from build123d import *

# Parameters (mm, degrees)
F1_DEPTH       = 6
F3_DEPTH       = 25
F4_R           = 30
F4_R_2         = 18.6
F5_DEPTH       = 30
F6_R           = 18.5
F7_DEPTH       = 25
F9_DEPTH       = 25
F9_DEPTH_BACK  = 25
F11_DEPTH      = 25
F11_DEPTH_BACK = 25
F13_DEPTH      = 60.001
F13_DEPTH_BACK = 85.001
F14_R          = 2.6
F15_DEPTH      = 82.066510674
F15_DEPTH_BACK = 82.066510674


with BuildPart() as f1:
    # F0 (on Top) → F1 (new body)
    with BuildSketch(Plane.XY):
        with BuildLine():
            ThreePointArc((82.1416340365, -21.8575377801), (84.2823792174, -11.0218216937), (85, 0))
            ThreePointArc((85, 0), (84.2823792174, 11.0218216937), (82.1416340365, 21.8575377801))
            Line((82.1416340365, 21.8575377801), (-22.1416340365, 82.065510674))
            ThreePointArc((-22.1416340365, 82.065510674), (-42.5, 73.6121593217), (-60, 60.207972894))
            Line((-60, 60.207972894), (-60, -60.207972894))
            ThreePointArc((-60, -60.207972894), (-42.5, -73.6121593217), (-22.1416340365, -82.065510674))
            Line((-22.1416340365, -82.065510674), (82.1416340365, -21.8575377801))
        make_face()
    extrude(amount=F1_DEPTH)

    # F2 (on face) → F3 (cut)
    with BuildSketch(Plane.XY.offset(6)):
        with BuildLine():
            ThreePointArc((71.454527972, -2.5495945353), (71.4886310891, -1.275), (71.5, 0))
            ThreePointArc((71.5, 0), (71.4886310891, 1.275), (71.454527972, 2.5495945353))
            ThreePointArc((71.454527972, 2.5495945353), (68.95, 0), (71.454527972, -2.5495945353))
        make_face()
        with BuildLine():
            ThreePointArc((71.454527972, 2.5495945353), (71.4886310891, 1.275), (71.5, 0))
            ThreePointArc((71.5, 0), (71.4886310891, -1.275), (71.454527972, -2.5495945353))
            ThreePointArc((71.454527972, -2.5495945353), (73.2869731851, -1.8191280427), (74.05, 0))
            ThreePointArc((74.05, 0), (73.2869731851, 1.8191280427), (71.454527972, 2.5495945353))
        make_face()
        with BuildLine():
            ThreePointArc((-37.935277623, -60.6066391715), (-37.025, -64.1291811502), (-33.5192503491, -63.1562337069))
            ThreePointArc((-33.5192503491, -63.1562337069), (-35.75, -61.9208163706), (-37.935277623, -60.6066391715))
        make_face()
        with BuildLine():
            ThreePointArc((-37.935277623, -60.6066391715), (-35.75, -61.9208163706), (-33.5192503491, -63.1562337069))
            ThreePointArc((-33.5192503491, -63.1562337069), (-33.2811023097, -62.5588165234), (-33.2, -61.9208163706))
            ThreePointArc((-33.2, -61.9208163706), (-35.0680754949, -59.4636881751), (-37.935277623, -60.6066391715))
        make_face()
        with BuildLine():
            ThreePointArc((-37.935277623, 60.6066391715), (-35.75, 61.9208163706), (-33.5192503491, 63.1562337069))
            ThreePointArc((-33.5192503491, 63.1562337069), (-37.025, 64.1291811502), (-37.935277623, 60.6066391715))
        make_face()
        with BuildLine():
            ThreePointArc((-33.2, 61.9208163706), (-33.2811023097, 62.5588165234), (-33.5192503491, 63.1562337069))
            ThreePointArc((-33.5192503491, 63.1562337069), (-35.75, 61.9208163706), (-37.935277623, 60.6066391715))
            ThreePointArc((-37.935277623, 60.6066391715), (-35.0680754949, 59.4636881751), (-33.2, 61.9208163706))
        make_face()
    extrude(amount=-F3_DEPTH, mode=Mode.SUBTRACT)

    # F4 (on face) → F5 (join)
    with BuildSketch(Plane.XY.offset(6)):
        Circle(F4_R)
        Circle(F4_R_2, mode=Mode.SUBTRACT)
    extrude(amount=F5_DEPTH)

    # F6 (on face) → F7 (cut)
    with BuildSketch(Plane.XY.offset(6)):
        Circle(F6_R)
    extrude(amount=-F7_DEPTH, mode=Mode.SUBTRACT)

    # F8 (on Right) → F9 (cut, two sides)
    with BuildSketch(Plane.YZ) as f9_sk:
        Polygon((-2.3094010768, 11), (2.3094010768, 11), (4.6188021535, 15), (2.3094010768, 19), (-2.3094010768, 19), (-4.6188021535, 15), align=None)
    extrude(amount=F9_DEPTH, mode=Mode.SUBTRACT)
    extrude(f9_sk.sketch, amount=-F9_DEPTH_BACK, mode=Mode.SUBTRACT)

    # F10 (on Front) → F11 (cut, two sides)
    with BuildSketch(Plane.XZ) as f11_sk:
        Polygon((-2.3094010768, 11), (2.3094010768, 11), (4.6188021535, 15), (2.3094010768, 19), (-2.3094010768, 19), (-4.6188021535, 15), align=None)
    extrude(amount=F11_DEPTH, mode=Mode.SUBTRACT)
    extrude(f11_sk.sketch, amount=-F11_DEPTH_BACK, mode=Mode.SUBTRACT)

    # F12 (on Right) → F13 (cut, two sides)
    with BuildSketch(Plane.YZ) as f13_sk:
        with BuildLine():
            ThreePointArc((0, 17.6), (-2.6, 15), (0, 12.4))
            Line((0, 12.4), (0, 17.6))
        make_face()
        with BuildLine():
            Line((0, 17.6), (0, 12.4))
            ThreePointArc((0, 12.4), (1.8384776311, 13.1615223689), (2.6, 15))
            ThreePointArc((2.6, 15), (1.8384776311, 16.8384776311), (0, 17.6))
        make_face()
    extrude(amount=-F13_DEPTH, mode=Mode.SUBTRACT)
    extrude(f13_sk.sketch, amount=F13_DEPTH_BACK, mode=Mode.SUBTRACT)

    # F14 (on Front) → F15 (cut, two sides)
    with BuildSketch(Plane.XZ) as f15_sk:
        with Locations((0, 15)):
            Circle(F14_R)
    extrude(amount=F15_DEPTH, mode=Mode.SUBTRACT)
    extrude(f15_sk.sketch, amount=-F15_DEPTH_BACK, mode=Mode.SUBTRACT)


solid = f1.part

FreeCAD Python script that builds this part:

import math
import FreeCAD as App
import Part
import Sketcher

V = App.Vector
Q = App.Units.Quantity


def add_polygon(sketch, points):
    """Adds a closed chain of lines whose ends are joined by coincident constraints."""
    first, n = sketch.GeometryCount, len(points)
    for a, b in zip(points, points[1:] + points[:1]):
        sketch.addGeometry(Part.LineSegment(App.Vector(*a, 0), App.Vector(*b, 0)), False)
    for i in range(n):
        sketch.addConstraint(Sketcher.Constraint("Coincident", first + i, 2, first + (i + 1) % n, 1))

doc = App.newDocument("Part")
body = doc.addObject("PartDesign::Body", "Body")

# Sketch on XY plane
sketch1 = doc.addObject("Sketcher::SketchObject", "Sketch")
body.addObject(sketch1)
sketch1.AttachmentSupport = (doc.XY_Plane, [""])
sketch1.MapMode = "FlatFace"
sketch1.addGeometry(Part.ArcOfCircle(Part.Circle(V(0, 0, 0), V(0, 0, 1), 85), math.radians(-14.9), math.radians(0)), False)
sketch1.addGeometry(Part.ArcOfCircle(Part.Circle(V(0, 0, 0), V(0, 0, 1), 85), math.radians(0), math.radians(14.9)), False)
sketch1.addGeometry(Part.LineSegment(V(82, 22, 0), V(-22, 82, 0)), False)
sketch1.addGeometry(Part.ArcOfCircle(Part.Circle(V(0, 0, 0), V(0, 0, 1), 85), math.radians(105), math.radians(135)), False)
sketch1.addGeometry(Part.LineSegment(V(-60, 60, 0), V(-60, -60, 0)), False)
sketch1.addGeometry(Part.ArcOfCircle(Part.Circle(V(0, 0, 0), V(0, 0, 1), 85), math.radians(-135), math.radians(-105)), False)
sketch1.addGeometry(Part.LineSegment(V(-22, -82, 0), V(82, -22, 0)), False)
sketch1.addConstraint(Sketcher.Constraint("Tangent", 0, 2, 1, 1))
sketch1.addConstraint(Sketcher.Constraint("Coincident", 1, 2, 2, 1))
sketch1.addConstraint(Sketcher.Constraint("Coincident", 2, 2, 3, 1))
sketch1.addConstraint(Sketcher.Constraint("Coincident", 3, 2, 4, 1))
sketch1.addConstraint(Sketcher.Constraint("Coincident", 4, 2, 5, 1))
sketch1.addConstraint(Sketcher.Constraint("Coincident", 5, 2, 6, 1))
sketch1.addConstraint(Sketcher.Constraint("Coincident", 6, 2, 0, 1))
sketch1.addConstraint(Sketcher.Constraint("Vertical", 4))
sketch1.addConstraint(Sketcher.Constraint("Coincident", 0, 3, -1, 1))
sketch1.addConstraint(Sketcher.Constraint("Coincident", 3, 3, -1, 1))
sketch1.addConstraint(Sketcher.Constraint("Coincident", 5, 3, -1, 1))
sketch1.addConstraint(Sketcher.Constraint("Equal", 0, 1))
sketch1.addConstraint(Sketcher.Constraint("Equal", 1, 3))
sketch1.addConstraint(Sketcher.Constraint("Equal", 3, 5))
sketch1.addConstraint(Sketcher.Constraint("PointOnObject", 0, 2, -1))
sketch1.addConstraint(Sketcher.Constraint("Vertical", 2, 2, 5, 2))
sketch1.addConstraint(Sketcher.Constraint("Vertical", 1, 2, 6, 2))
sketch1.addConstraint(Sketcher.Constraint("Radius", 0, 85.0))
sketch1.addConstraint(Sketcher.Constraint("Angle", 2, Q("150 deg")))
sketch1.addConstraint(Sketcher.Constraint("DistanceX", 3, 2, -1, 1, 60.0))
sketch1.addConstraint(Sketcher.Constraint("DistanceY", -1, 1, 2, 2, 82.065511))
pad1 = doc.addObject("PartDesign::Pad", "Pad")
body.addObject(pad1)
pad1.Profile = sketch1
pad1.Length = 6

# Sketch on XY plane
sketch2 = doc.addObject("Sketcher::SketchObject", "Sketch001")
body.addObject(sketch2)
sketch2.AttachmentSupport = (doc.XY_Plane, [""])
sketch2.MapMode = "FlatFace"
sketch2.AttachmentOffset = App.Placement(V(0, 0, 6), App.Rotation())
sketch2.addGeometry(Part.ArcOfCircle(Part.Circle(V(71.5, 0, 0), V(0, 0, 1), 2.5), math.radians(91), math.radians(269)), False)
sketch2.addGeometry(Part.ArcOfCircle(Part.Circle(V(71.5, 0, 0), V(0, 0, 1), 2.5), math.radians(-91), math.radians(0)), False)
sketch2.addGeometry(Part.ArcOfCircle(Part.Circle(V(71.5, 0, 0), V(0, 0, 1), 2.5), math.radians(0), math.radians(91)), False)
sketch2.addGeometry(Part.ArcOfCircle(Part.Circle(V(-35.8, -61.9, 0), V(0, 0, 1), 2.5), math.radians(149), math.radians(331)), False)
sketch2.addGeometry(Part.ArcOfCircle(Part.Circle(V(-35.7, -61.9, 0), V(0, 0, 1), 2.5), math.radians(-29), math.radians(0)), False)
sketch2.addGeometry(Part.ArcOfCircle(Part.Circle(V(-35.8, -61.9, 0), V(0, 0, 1), 2.5), math.radians(0), math.radians(149)), False)
sketch2.addGeometry(Part.ArcOfCircle(Part.Circle(V(-35.8, 61.9, 0), V(0, 0, 1), 2.5), math.radians(29), math.radians(211)), False)
sketch2.addGeometry(Part.ArcOfCircle(Part.Circle(V(-35.8, 61.9, 0), V(0, 0, 1), 2.5), math.radians(-149), math.radians(0)), False)
sketch2.addGeometry(Part.ArcOfCircle(Part.Circle(V(-35.7, 61.9, 0), V(0, 0, 1), 2.5), math.radians(0), math.radians(29)), False)
sketch2.addConstraint(Sketcher.Constraint("Tangent", 0, 2, 1, 1))
sketch2.addConstraint(Sketcher.Constraint("Tangent", 1, 2, 2, 1))
sketch2.addConstraint(Sketcher.Constraint("Tangent", 2, 2, 0, 1))
sketch2.addConstraint(Sketcher.Constraint("Tangent", 3, 2, 4, 1))
sketch2.addConstraint(Sketcher.Constraint("Tangent", 4, 2, 5, 1))
sketch2.addConstraint(Sketcher.Constraint("Tangent", 5, 2, 3, 1))
sketch2.addConstraint(Sketcher.Constraint("Tangent", 6, 2, 7, 1))
sketch2.addConstraint(Sketcher.Constraint("Tangent", 7, 2, 8, 1))
sketch2.addConstraint(Sketcher.Constraint("Tangent", 8, 2, 6, 1))
sketch2.addConstraint(Sketcher.Constraint("Equal", 2, 3))
sketch2.addConstraint(Sketcher.Constraint("Equal", 5, 6))
sketch2.addConstraint(Sketcher.Constraint("Symmetric", 3, 3, 6, 3, -1))
sketch2.addConstraint(Sketcher.Constraint("Symmetric", 0, 2, 2, 2, -1))
sketch2.addConstraint(Sketcher.Constraint("PointOnObject", 1, 2, -1))
sketch2.addConstraint(Sketcher.Constraint("Horizontal", 5, 3, 4, 2))
sketch2.addConstraint(Sketcher.Constraint("Horizontal", 8, 3, 7, 2))
sketch2.addConstraint(Sketcher.Constraint("Vertical", 5, 2, 6, 2))
sketch2.addConstraint(Sketcher.Constraint("Vertical", 3, 2, 8, 2))
sketch2.addConstraint(Sketcher.Constraint("Radius", 0, 2.55))
sketch2.addConstraint(Sketcher.Constraint("DistanceX", -1, 1, 0, 3, 71.5))
sketch2.addConstraint(Sketcher.Constraint("DistanceX", 4, 2, -1, 1, 33.2))
sketch2.addConstraint(Sketcher.Constraint("DistanceX", 3, 2, -1, 1, 33.51925))
sketch2.addConstraint(Sketcher.Constraint("DistanceY", 5, 2, -1, 1, 60.606639))
sketch2.addConstraint(Sketcher.Constraint("DistanceY", 4, 3, 0, 2, 59.371222))
sketch2.addConstraint(Sketcher.Constraint("DistanceY", 0, 2, 2, 2, 5.099189))
pocket1 = doc.addObject("PartDesign::Pocket", "Pocket")
body.addObject(pocket1)
pocket1.Profile = sketch2
pocket1.Length = 25

# Sketch on XY plane
sketch3 = doc.addObject("Sketcher::SketchObject", "Sketch002")
body.addObject(sketch3)
sketch3.AttachmentSupport = (doc.XY_Plane, [""])
sketch3.MapMode = "FlatFace"
sketch3.AttachmentOffset = App.Placement(V(0, 0, 6), App.Rotation())
sketch3.addGeometry(Part.Circle(V(0, 0, 0), V(0, 0, 1), 30), False)
sketch3.addGeometry(Part.Circle(V(0, 0, 0), V(0, 0, 1), 19), False)
sketch3.addConstraint(Sketcher.Constraint("Coincident", 0, 3, -1, 1))
sketch3.addConstraint(Sketcher.Constraint("Coincident", 1, 3, -1, 1))
sketch3.addConstraint(Sketcher.Constraint("Diameter", 0, 60.0))
sketch3.addConstraint(Sketcher.Constraint("Diameter", 1, 37.2))
pad2 = doc.addObject("PartDesign::Pad", "Pad001")
body.addObject(pad2)
pad2.Profile = sketch3
pad2.Length = 30

# Sketch on XY plane
sketch4 = doc.addObject("Sketcher::SketchObject", "Sketch003")
body.addObject(sketch4)
sketch4.AttachmentSupport = (doc.XY_Plane, [""])
sketch4.MapMode = "FlatFace"
sketch4.AttachmentOffset = App.Placement(V(0, 0, 6), App.Rotation())
sketch4.addGeometry(Part.Circle(V(0, 0, 0), V(0, 0, 1), 18), False)
sketch4.addConstraint(Sketcher.Constraint("Coincident", 0, 3, -1, 1))
sketch4.addConstraint(Sketcher.Constraint("Diameter", 0, 37.0))
pocket2 = doc.addObject("PartDesign::Pocket", "Pocket001")
body.addObject(pocket2)
pocket2.Profile = sketch4
pocket2.Length = 25

# Sketch on YZ plane
sketch5 = doc.addObject("Sketcher::SketchObject", "Sketch004")
body.addObject(sketch5)
sketch5.AttachmentSupport = (doc.YZ_Plane, [""])
sketch5.MapMode = "FlatFace"
add_polygon(sketch5, [(-2.3, 11), (2.3, 11), (4.6, 15), (2.3, 19), (-2.3, 19), (-4.6, 15)])  # lines 0-5
sketch5.addConstraint(Sketcher.Constraint("Horizontal", 0))
sketch5.addConstraint(Sketcher.Constraint("Horizontal", 3))
sketch5.addConstraint(Sketcher.Constraint("Symmetric", 1, 2, 4, 2, -2))
sketch5.addConstraint(Sketcher.Constraint("Parallel", 1, 4))
sketch5.addConstraint(Sketcher.Constraint("Parallel", 2, 5))
sketch5.addConstraint(Sketcher.Constraint("Vertical", 0, 2, 2, 2))
sketch5.addConstraint(Sketcher.Constraint("Vertical", 3, 2, 5, 2))
sketch5.addConstraint(Sketcher.Constraint("Angle", 1, Q("60 deg")))
sketch5.addConstraint(Sketcher.Constraint("DistanceY", -1, 1, 0, 2, 11.0))
sketch5.addConstraint(Sketcher.Constraint("DistanceY", -1, 1, 1, 2, 15.0))
sketch5.addConstraint(Sketcher.Constraint("DistanceX", -1, 1, 0, 2, 2.309401))
pocket3 = doc.addObject("PartDesign::Pocket", "Pocket002")
body.addObject(pocket3)
pocket3.Profile = sketch5
pocket3.Type = "TwoLengths"
pocket3.Length = 25
pocket3.Length2 = 25
pocket3.Reversed = True

# Sketch on XZ plane
sketch6 = doc.addObject("Sketcher::SketchObject", "Sketch005")
body.addObject(sketch6)
sketch6.AttachmentSupport = (doc.XZ_Plane, [""])
sketch6.MapMode = "FlatFace"
add_polygon(sketch6, [(-2.3, 11), (2.3, 11), (4.6, 15), (2.3, 19), (-2.3, 19), (-4.6, 15)])  # lines 0-5
sketch6.addConstraint(Sketcher.Constraint("Horizontal", 0))
sketch6.addConstraint(Sketcher.Constraint("Horizontal", 3))
sketch6.addConstraint(Sketcher.Constraint("Symmetric", 1, 2, 4, 2, -2))
sketch6.addConstraint(Sketcher.Constraint("Parallel", 1, 4))
sketch6.addConstraint(Sketcher.Constraint("Parallel", 2, 5))
sketch6.addConstraint(Sketcher.Constraint("Vertical", 0, 2, 2, 2))
sketch6.addConstraint(Sketcher.Constraint("Vertical", 3, 2, 5, 2))
sketch6.addConstraint(Sketcher.Constraint("Angle", 1, Q("60 deg")))
sketch6.addConstraint(Sketcher.Constraint("DistanceY", -1, 1, 0, 2, 11.0))
sketch6.addConstraint(Sketcher.Constraint("DistanceY", -1, 1, 1, 2, 15.0))
sketch6.addConstraint(Sketcher.Constraint("DistanceX", -1, 1, 0, 2, 2.309401))
pocket4 = doc.addObject("PartDesign::Pocket", "Pocket003")
body.addObject(pocket4)
pocket4.Profile = sketch6
pocket4.Type = "TwoLengths"
pocket4.Length = 25
pocket4.Length2 = 25
pocket4.Reversed = True

# Sketch on YZ plane
sketch7 = doc.addObject("Sketcher::SketchObject", "Sketch006")
body.addObject(sketch7)
sketch7.AttachmentSupport = (doc.YZ_Plane, [""])
sketch7.MapMode = "FlatFace"
sketch7.addGeometry(Part.ArcOfCircle(Part.Circle(V(0, 15, 0), V(0, 0, 1), 2.6), math.radians(90), math.radians(270)), False)
sketch7.addGeometry(Part.ArcOfCircle(Part.Circle(V(0, 15, 0), V(0, 0, 1), 2.6), math.radians(-90), math.radians(0)), False)
sketch7.addGeometry(Part.ArcOfCircle(Part.Circle(V(0, 15, 0), V(0, 0, 1), 2.6), math.radians(0), math.radians(90)), False)
sketch7.addConstraint(Sketcher.Constraint("Tangent", 0, 2, 1, 1))
sketch7.addConstraint(Sketcher.Constraint("Tangent", 1, 2, 2, 1))
sketch7.addConstraint(Sketcher.Constraint("Tangent", 2, 2, 0, 1))
sketch7.addConstraint(Sketcher.Constraint("PointOnObject", 0, 3, -2))
sketch7.addConstraint(Sketcher.Constraint("PointOnObject", 0, 2, -2))
sketch7.addConstraint(Sketcher.Constraint("PointOnObject", 2, 2, -2))
sketch7.addConstraint(Sketcher.Constraint("Horizontal", 2, 3, 1, 2))
sketch7.addConstraint(Sketcher.Constraint("Radius", 0, 2.6))
sketch7.addConstraint(Sketcher.Constraint("DistanceY", -1, 1, 0, 3, 15.0))
pocket5 = doc.addObject("PartDesign::Pocket", "Pocket004")
body.addObject(pocket5)
pocket5.Profile = sketch7
pocket5.Type = "ThroughAll"
pocket5.Midplane = True

# Sketch on XZ plane
sketch8 = doc.addObject("Sketcher::SketchObject", "Sketch007")
body.addObject(sketch8)
sketch8.AttachmentSupport = (doc.XZ_Plane, [""])
sketch8.MapMode = "FlatFace"
sketch8.addGeometry(Part.Circle(V(0, 15, 0), V(0, 0, 1), 2.6), False)
sketch8.addConstraint(Sketcher.Constraint("PointOnObject", 0, 3, -2))
sketch8.addConstraint(Sketcher.Constraint("Diameter", 0, 5.2))
sketch8.addConstraint(Sketcher.Constraint("DistanceY", -1, 1, 0, 3, 15.0))
pocket6 = doc.addObject("PartDesign::Pocket", "Pocket005")
body.addObject(pocket6)
pocket6.Profile = sketch8
pocket6.Type = "ThroughAll"
pocket6.Midplane = True

doc.recompute()
